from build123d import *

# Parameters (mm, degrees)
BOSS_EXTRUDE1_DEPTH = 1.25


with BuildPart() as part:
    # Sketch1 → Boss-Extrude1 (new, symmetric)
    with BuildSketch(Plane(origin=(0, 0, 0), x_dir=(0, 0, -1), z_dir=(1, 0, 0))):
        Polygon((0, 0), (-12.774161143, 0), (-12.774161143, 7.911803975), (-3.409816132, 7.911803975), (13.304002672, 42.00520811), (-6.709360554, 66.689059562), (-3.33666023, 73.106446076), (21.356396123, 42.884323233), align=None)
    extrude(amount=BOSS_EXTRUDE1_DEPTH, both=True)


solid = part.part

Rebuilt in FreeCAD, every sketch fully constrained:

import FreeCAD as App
import Part
import Sketcher

doc = App.newDocument("Part")
params = doc.addObject("Spreadsheet::Sheet", "Params")
for row, (alias, value) in enumerate([
    ("pad1_length", "2.5 mm"),
], start=1):
    params.set(f"A{row}", alias)
    params.set(f"B{row}", "=" + value)
    params.setAlias(f"B{row}", alias)

body = doc.addObject("PartDesign::Body", "Body")

# Sketch on YZ plane
sketch1 = doc.addObject("Sketcher::SketchObject", "Sketch")
body.addObject(sketch1)
sketch1.AttachmentSupport = (doc.YZ_Plane, [""])
sketch1.MapMode = "FlatFace"
sketch1.addGeometry([
    Part.LineSegment(App.Vector(0, 12.774161, 0), App.Vector(0, 0, 0)),  # 0
    Part.LineSegment(App.Vector(0, 0, 0), App.Vector(42.884323, -21.356396, 0)),  # 1
    Part.LineSegment(App.Vector(42.884323, -21.356396, 0), App.Vector(73.106446, 3.33666, 0)),  # 2
    Part.LineSegment(App.Vector(73.106446, 3.33666, 0), App.Vector(66.68906, 6.709361, 0)),  # 3
    Part.LineSegment(App.Vector(66.68906, 6.709361, 0), App.Vector(42.005208, -13.304003, 0)),  # 4
    Part.LineSegment(App.Vector(42.005208, -13.304003, 0), App.Vector(7.911804, 3.409816, 0)),  # 5
    Part.LineSegment(App.Vector(7.911804, 3.409816, 0), App.Vector(7.911804, 12.774161, 0)),  # 6
    Part.LineSegment(App.Vector(7.911804, 12.774161, 0), App.Vector(0, 12.774161, 0)),  # 7
], False)
sketch1.addConstraint([
    Sketcher.Constraint("Coincident", 0, 2, 1, 1),
    Sketcher.Constraint("Coincident", 1, 2, 2, 1),
    Sketcher.Constraint("Coincident", 2, 2, 3, 1),
    Sketcher.Constraint("Coincident", 3, 2, 4, 1),
    Sketcher.Constraint("Coincident", 4, 2, 5, 1),
    Sketcher.Constraint("Coincident", 5, 2, 6, 1),
    Sketcher.Constraint("Coincident", 6, 2, 7, 1),
    Sketcher.Constraint("Coincident", 7, 2, 0, 1),
    Sketcher.Constraint("Vertical", 0),
    Sketcher.Constraint("Vertical", 6),
    Sketcher.Constraint("Horizontal", 7),
    Sketcher.Constraint("Coincident", 0, 2, -1, 1),
    Sketcher.Constraint("DistanceY", 0, 2, 0, 1, 12.774161),
    Sketcher.Constraint("DistanceY", 2, 2, 3, 2, 3.3727),
    Sketcher.Constraint("DistanceY", 3, 2, 6, 2, 6.064801),
    Sketcher.Constraint("Distance", 4, 31.777779),
    Sketcher.Constraint("DistanceX", 7, 2, 7, 1, 7.911804),
    Sketcher.Constraint("DistanceY", 6, 1, 6, 2, 9.364345),
    Sketcher.Constraint("DistanceX", -1, 1, 3, 2, 66.68906),
    Sketcher.Constraint("DistanceX", -1, 1, 4, 2, 42.005208),
    Sketcher.Constraint("DistanceX", 5, 2, 1, 2, 34.972519),
    Sketcher.Constraint("Distance", 1, 47.907837),
    Sketcher.Constraint("Distance", 2, 39.027218),
])
pad1 = doc.addObject("PartDesign::Pad", "Pad")
body.addObject(pad1)
pad1.Profile = sketch1
pad1.setExpression("Length", "Params.pad1_length")
pad1.Midplane = True

doc.recompute()
